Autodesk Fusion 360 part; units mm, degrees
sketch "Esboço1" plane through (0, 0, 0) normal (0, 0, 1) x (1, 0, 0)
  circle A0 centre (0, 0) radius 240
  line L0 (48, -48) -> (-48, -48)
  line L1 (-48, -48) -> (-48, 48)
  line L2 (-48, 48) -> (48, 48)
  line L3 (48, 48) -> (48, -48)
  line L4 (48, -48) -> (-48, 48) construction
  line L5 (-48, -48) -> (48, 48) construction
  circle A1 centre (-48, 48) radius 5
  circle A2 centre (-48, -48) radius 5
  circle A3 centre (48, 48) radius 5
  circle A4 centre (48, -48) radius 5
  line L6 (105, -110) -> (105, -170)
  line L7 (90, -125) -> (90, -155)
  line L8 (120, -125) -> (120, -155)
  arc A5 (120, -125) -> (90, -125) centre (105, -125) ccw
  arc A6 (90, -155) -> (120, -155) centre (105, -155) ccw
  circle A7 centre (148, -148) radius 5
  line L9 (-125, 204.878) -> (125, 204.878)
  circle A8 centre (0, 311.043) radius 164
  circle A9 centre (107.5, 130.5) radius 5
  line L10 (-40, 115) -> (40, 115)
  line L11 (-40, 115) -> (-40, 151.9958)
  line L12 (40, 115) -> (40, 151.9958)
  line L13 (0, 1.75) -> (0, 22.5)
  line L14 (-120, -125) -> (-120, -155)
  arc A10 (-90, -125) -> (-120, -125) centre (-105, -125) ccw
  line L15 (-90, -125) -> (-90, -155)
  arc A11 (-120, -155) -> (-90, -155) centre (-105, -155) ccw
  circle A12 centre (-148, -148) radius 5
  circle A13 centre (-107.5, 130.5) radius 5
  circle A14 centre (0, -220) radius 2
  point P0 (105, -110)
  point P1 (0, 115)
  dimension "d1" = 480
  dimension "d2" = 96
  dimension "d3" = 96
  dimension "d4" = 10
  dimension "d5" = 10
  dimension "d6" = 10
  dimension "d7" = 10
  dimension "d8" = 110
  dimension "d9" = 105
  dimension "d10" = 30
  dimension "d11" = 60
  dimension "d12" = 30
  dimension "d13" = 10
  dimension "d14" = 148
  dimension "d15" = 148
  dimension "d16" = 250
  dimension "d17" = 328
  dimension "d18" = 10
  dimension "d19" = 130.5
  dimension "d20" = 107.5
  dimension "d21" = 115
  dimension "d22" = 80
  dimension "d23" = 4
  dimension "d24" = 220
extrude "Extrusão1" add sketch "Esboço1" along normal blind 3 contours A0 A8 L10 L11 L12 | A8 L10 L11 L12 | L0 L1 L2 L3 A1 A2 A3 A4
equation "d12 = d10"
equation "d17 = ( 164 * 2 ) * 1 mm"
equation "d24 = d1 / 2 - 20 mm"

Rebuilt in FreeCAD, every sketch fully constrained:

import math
import FreeCAD as App
import Part
import Sketcher

V = App.Vector

doc = App.newDocument("Part")
body = doc.addObject("PartDesign::Body", "Body")

# Sketch on XY plane
sketch1 = body.newObject("Sketcher::SketchObject", "Sketch")
sketch1.AttachmentSupport = (doc.getObject("XY_Plane"), [""])
sketch1.MapMode = "FlatFace"
sketch1.addGeometry([
    Part.ArcOfCircle(Part.Circle(V(0, 0, 0), V(0, 0, 1), 240), math.radians(121.388168), math.radians(418.611832)),  # 0
    Part.ArcOfCircle(Part.Circle(V(0, 311.043, 0), V(0, 0, 1), 164), math.radians(-139.65809), math.radians(-40.34191)),  # 1
    Part.Circle(V(-148, -148, 0), V(0, 0, 1), 5),  # 2
    Part.LineSegment(V(-120, -155, 0), V(-120, -125, 0)),  # 3
    Part.ArcOfCircle(Part.Circle(V(-105, -125, 0), V(0, 0, 1), 15), math.radians(0), math.radians(180)),  # 4
    Part.LineSegment(V(-90, -125, 0), V(-90, -155, 0)),  # 5
    Part.ArcOfCircle(Part.Circle(V(-105, -155, 0), V(0, 0, 1), 15), math.radians(180), math.radians(360)),  # 6
    Part.Circle(V(0, -220, 0), V(0, 0, 1), 2),  # 7
    Part.ArcOfCircle(Part.Circle(V(105, -125, 0), V(0, 0, 1), 15), math.radians(0), math.radians(180)),  # 8
    Part.LineSegment(V(120, -125, 0), V(120, -155, 0)),  # 9
    Part.ArcOfCircle(Part.Circle(V(105, -155, 0), V(0, 0, 1), 15), math.radians(180), math.radians(360)),  # 10
    Part.LineSegment(V(90, -155, 0), V(90, -125, 0)),  # 11
    Part.Circle(V(148, -148, 0), V(0, 0, 1), 5),  # 12
    Part.Circle(V(48, -48, 0), V(0, 0, 1), 5),  # 13
    Part.Circle(V(48, 48, 0), V(0, 0, 1), 5),  # 14
    Part.Circle(V(-48, 48, 0), V(0, 0, 1), 5),  # 15
    Part.Circle(V(-48, -48, 0), V(0, 0, 1), 5),  # 16
    Part.Circle(V(-107.5, 130.5, 0), V(0, 0, 1), 5),  # 17
    Part.Circle(V(107.5, 130.5, 0), V(0, 0, 1), 5),  # 18
], False)
sketch1.addConstraint([
    Sketcher.Constraint("Coincident", 0, 1, 1, 1),
    Sketcher.Constraint("Coincident", 1, 2, 0, 2),
    Sketcher.Constraint("Tangent", 3, 2, 4, 2),
    Sketcher.Constraint("Tangent", 4, 1, 5, 1),
    Sketcher.Constraint("Tangent", 5, 2, 6, 2),
    Sketcher.Constraint("Tangent", 6, 1, 3, 1),
    Sketcher.Constraint("Tangent", 8, 1, 9, 1),
    Sketcher.Constraint("Tangent", 9, 2, 10, 2),
    Sketcher.Constraint("Tangent", 10, 1, 11, 1),
    Sketcher.Constraint("Tangent", 11, 2, 8, 2),
    Sketcher.Constraint("Vertical", 3),
    Sketcher.Constraint("Vertical", 5),
    Sketcher.Constraint("Vertical", 9),
    Sketcher.Constraint("Vertical", 11),
    Sketcher.Constraint("Coincident", 0, 3, -1, 1),
    Sketcher.Constraint("Equal", 6, 8),
    Sketcher.Constraint("Equal", 2, 12),
    Sketcher.Constraint("Equal", 12, 13),
    Sketcher.Constraint("Equal", 13, 14),
    Sketcher.Constraint("Equal", 14, 15),
    Sketcher.Constraint("Equal", 15, 16),
    Sketcher.Constraint("Equal", 16, 17),
    Sketcher.Constraint("Equal", 17, 18),
    Sketcher.Constraint("Symmetric", 13, 3, 15, 3, -1, 1),
    Sketcher.Constraint("Symmetric", 14, 3, 16, 3, -1, 1),
    Sketcher.Constraint("Symmetric", 4, 3, 8, 3, -2),
    Sketcher.Constraint("Symmetric", 2, 3, 12, 3, -2),
    Sketcher.Constraint("Symmetric", 14, 3, 15, 3, -2),
    Sketcher.Constraint("Symmetric", 17, 3, 18, 3, -2),
    Sketcher.Constraint("PointOnObject", 1, 3, -2),
    Sketcher.Constraint("PointOnObject", 7, 3, -2),
    Sketcher.Constraint("Horizontal", 6, 3, 10, 3),
    Sketcher.Constraint("Diameter", 2, 10.0),
    Sketcher.Constraint("Diameter", 7, 4.0),
    Sketcher.Constraint("Radius", 0, 240.0),
    Sketcher.Constraint("Radius", 1, 164.0),
    Sketcher.Constraint("Radius", 4, 15.0),
    Sketcher.Constraint("DistanceY", 3, 1, 3, 2, 30.0),
    Sketcher.Constraint("DistanceX", 2, 3, -1, 1, 148.0),
    Sketcher.Constraint("DistanceY", 2, 3, -1, 1, 148.0),
    Sketcher.Constraint("DistanceX", 4, 3, -1, 1, 105.0),
    Sketcher.Constraint("DistanceY", 7, 3, -1, 1, 220.0),
    Sketcher.Constraint("DistanceY", 13, 3, 14, 3, 96.0),
    Sketcher.Constraint("DistanceX", 15, 3, 14, 3, 96.0),
    Sketcher.Constraint("DistanceX", 17, 3, -1, 1, 107.5),
    Sketcher.Constraint("DistanceY", -1, 1, 17, 3, 130.5),
    Sketcher.Constraint("DistanceY", 4, 3, -1, 1, 125.0),
    Sketcher.Constraint("DistanceX", 0, 1, -1, 1, 125.0),
])
pad1 = body.newObject("PartDesign::Pad", "Pad")
pad1.Profile = sketch1
pad1.Length = 3

doc.recompute()
